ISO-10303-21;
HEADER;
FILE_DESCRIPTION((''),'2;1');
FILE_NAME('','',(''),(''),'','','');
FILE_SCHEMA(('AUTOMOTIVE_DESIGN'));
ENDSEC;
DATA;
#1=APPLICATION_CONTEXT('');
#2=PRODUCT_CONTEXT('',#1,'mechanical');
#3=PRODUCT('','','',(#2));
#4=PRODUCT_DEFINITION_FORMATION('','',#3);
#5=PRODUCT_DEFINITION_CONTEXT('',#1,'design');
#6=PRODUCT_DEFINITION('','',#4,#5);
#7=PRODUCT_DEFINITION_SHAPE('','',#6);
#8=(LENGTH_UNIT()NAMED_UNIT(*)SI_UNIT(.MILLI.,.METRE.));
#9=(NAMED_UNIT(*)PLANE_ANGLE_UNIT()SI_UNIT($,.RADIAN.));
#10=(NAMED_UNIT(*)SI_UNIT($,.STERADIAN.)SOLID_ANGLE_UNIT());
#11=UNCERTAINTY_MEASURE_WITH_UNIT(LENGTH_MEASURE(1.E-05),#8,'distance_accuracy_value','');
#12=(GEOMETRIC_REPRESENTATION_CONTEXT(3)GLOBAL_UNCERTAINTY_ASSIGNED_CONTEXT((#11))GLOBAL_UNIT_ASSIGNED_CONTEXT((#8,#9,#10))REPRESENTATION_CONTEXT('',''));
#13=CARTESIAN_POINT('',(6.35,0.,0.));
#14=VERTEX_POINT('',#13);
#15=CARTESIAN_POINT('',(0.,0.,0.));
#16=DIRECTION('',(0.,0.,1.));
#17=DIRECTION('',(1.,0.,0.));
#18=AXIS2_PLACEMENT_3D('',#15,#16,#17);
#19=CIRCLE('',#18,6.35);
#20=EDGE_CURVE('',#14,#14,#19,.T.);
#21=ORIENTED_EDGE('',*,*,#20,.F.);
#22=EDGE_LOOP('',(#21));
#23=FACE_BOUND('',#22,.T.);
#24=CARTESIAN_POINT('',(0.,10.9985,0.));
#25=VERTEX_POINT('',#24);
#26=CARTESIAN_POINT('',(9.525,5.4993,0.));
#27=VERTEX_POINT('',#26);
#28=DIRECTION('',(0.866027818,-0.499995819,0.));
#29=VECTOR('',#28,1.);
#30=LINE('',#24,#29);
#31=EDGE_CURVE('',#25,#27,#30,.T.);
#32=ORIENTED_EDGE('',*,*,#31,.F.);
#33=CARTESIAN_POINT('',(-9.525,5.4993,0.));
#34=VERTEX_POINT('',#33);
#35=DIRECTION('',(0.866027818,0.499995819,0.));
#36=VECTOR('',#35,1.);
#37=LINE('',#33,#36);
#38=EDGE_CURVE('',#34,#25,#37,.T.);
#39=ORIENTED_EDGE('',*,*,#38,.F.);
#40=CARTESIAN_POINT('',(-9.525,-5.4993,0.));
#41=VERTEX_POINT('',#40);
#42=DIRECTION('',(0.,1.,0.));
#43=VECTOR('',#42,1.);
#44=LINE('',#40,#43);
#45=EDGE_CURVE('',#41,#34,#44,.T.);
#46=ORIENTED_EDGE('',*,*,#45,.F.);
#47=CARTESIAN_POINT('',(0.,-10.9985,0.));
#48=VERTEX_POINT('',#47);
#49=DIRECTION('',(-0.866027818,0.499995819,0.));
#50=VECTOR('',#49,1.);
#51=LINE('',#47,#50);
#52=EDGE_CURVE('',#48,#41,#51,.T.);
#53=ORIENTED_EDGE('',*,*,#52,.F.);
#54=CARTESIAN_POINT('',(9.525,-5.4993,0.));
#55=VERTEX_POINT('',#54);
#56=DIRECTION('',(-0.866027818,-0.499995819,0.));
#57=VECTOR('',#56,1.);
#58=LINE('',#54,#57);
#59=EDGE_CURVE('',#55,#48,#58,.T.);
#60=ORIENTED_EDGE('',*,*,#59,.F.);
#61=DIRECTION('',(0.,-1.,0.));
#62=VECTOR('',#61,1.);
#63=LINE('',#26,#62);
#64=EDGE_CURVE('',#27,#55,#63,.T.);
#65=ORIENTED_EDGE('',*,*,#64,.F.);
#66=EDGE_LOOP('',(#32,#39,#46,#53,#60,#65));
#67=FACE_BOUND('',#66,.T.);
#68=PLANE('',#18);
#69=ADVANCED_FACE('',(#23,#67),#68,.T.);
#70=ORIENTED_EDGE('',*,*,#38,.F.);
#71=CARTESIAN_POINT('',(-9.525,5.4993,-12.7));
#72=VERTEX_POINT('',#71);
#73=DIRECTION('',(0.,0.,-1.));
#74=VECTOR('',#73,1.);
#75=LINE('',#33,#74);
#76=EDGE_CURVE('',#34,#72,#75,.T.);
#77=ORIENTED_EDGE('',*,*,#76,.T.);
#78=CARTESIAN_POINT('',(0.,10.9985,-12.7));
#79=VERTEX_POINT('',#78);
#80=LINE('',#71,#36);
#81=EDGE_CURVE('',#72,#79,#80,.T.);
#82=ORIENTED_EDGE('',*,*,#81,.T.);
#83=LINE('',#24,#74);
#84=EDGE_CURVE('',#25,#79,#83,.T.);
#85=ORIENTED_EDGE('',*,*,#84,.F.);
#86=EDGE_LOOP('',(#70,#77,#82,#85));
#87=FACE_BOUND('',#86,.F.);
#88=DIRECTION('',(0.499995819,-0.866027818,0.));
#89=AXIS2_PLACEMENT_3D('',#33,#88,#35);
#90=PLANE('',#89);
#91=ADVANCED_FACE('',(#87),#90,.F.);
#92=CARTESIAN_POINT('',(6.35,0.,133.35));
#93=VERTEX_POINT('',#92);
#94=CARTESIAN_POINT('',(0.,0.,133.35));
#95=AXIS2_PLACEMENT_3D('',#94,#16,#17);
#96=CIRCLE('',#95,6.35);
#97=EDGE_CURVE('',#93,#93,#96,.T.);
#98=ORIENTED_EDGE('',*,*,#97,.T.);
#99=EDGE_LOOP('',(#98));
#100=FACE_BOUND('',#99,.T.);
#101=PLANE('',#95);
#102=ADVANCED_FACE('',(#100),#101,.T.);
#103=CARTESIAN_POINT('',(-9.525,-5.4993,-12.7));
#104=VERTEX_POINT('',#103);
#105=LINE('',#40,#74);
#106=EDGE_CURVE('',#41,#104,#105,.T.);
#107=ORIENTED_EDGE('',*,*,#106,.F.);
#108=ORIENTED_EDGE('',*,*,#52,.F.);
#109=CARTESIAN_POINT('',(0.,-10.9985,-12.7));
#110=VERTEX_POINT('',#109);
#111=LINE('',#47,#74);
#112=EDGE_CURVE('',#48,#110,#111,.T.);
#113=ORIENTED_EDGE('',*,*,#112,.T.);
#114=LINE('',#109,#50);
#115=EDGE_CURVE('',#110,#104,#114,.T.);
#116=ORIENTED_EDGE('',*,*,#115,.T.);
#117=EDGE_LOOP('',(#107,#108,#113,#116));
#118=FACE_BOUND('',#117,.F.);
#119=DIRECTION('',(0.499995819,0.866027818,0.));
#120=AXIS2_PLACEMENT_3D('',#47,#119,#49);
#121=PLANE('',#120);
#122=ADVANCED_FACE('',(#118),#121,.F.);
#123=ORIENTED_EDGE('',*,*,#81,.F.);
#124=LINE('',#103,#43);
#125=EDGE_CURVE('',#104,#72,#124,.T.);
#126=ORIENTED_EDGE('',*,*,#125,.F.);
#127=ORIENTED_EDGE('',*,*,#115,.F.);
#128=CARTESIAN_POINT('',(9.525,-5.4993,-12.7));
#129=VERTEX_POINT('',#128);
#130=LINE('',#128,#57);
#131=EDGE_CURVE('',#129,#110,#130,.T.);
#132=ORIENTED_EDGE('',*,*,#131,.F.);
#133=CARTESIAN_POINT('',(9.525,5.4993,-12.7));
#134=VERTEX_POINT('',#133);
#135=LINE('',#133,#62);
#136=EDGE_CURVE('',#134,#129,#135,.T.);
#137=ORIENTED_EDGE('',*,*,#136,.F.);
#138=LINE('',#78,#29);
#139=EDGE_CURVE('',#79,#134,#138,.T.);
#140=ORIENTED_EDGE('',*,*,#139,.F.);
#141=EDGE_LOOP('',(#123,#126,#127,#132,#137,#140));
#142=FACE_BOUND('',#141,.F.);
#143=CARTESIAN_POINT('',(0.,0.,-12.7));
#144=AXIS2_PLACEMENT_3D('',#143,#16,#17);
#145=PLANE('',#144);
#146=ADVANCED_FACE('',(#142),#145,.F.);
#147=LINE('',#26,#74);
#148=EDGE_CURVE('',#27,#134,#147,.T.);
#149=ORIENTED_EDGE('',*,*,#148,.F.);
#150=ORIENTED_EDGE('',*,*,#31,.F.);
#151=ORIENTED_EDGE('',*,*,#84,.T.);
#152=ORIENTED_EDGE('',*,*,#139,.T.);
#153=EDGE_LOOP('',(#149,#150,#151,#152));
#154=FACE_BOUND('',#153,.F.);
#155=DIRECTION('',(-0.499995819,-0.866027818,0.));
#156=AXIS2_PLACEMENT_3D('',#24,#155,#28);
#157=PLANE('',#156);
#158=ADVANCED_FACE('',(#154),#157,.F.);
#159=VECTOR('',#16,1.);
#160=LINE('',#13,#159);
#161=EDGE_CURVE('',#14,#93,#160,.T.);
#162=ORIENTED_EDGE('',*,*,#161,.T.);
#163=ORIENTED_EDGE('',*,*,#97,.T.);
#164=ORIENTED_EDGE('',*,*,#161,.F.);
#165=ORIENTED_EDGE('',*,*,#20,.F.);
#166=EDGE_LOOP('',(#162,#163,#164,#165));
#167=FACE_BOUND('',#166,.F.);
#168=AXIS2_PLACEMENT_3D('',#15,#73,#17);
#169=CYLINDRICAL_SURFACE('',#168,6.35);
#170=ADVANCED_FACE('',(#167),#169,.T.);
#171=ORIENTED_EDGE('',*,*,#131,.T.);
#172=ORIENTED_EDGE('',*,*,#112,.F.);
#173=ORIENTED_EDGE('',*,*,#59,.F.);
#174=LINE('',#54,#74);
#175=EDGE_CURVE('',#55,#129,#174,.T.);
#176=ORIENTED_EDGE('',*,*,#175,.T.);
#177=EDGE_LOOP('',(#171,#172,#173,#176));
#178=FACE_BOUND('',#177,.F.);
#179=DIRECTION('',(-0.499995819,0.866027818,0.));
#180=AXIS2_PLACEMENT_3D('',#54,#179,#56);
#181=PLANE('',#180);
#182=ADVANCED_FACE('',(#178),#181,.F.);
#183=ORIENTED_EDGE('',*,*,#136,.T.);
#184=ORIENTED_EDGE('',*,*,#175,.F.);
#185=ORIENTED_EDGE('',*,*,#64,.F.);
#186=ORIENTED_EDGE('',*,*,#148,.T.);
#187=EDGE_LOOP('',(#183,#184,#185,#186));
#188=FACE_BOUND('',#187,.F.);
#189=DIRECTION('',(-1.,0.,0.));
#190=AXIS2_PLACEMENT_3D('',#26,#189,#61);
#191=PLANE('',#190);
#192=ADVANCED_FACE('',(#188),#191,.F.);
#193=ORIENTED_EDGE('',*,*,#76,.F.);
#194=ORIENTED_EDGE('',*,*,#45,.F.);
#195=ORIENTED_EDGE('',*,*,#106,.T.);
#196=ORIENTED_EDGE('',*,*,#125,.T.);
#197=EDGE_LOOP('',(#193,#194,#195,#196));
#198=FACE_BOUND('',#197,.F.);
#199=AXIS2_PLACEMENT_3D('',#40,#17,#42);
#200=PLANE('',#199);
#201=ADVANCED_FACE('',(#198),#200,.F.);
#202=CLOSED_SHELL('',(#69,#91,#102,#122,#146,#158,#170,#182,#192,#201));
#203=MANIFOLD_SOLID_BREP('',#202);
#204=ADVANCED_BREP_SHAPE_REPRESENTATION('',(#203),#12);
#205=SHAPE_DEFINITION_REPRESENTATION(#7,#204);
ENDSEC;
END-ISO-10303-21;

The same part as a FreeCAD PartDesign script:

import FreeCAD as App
import Part
import Sketcher

V = App.Vector
Q = App.Units.Quantity


def add_polygon(sketch, points):
    """Adds a closed chain of lines whose ends are joined by coincident constraints."""
    first, n = sketch.GeometryCount, len(points)
    for a, b in zip(points, points[1:] + points[:1]):
        sketch.addGeometry(Part.LineSegment(App.Vector(*a, 0), App.Vector(*b, 0)), False)
    for i in range(n):
        sketch.addConstraint(Sketcher.Constraint("Coincident", first + i, 2, first + (i + 1) % n, 1))

doc = App.newDocument("Part")
body = doc.addObject("PartDesign::Body", "Body")

# Sketch on XY plane
sketch1 = doc.addObject("Sketcher::SketchObject", "Sketch")
body.addObject(sketch1)
sketch1.AttachmentSupport = (doc.XY_Plane, [""])
sketch1.MapMode = "FlatFace"
add_polygon(sketch1, [(10, 5), (0, 11), (-10, 5), (-10, -5), (0, -11), (10, -5)])  # lines 0-5
sketch1.addConstraint([
    Sketcher.Constraint("Vertical", 2),
    Sketcher.Constraint("Vertical", 5),
    Sketcher.Constraint("Symmetric", 0, 2, 3, 2, -1, 1),
    Sketcher.Constraint("Symmetric", 1, 2, 4, 2, -1, 1),
    Sketcher.Constraint("PointOnObject", 0, 2, -2),
    Sketcher.Constraint("Parallel", 0, 3),
    Sketcher.Constraint("Horizontal", 2, 2, 4, 2),
    Sketcher.Constraint("DistanceX", 2, 2, 4, 2, Q("0.75 in")),
    Sketcher.Constraint("Angle", 0, Q("150.0003 deg")),
    Sketcher.Constraint("DistanceY", -1, 1, 0, 2, Q("0.433 in")),
])
pad1 = doc.addObject("PartDesign::Pad", "Pad")
body.addObject(pad1)
pad1.Profile = sketch1
pad1.Length = Q("0.5 in")
pad1.Reversed = True

# Sketch on XY plane
sketch2 = doc.addObject("Sketcher::SketchObject", "Sketch001")
body.addObject(sketch2)
sketch2.AttachmentSupport = (doc.XY_Plane, [""])
sketch2.MapMode = "FlatFace"
sketch2.addGeometry(Part.Circle(V(0, 0, 0), V(0, 0, 1), 6), False)
sketch2.addConstraint([
    Sketcher.Constraint("Coincident", 0, 3, -1, 1),
    Sketcher.Constraint("Diameter", 0, Q("0.5 in")),
])
pad2 = doc.addObject("PartDesign::Pad", "Pad001")
body.addObject(pad2)
pad2.Profile = sketch2
pad2.Length = Q("5.25 in")

doc.recompute()
